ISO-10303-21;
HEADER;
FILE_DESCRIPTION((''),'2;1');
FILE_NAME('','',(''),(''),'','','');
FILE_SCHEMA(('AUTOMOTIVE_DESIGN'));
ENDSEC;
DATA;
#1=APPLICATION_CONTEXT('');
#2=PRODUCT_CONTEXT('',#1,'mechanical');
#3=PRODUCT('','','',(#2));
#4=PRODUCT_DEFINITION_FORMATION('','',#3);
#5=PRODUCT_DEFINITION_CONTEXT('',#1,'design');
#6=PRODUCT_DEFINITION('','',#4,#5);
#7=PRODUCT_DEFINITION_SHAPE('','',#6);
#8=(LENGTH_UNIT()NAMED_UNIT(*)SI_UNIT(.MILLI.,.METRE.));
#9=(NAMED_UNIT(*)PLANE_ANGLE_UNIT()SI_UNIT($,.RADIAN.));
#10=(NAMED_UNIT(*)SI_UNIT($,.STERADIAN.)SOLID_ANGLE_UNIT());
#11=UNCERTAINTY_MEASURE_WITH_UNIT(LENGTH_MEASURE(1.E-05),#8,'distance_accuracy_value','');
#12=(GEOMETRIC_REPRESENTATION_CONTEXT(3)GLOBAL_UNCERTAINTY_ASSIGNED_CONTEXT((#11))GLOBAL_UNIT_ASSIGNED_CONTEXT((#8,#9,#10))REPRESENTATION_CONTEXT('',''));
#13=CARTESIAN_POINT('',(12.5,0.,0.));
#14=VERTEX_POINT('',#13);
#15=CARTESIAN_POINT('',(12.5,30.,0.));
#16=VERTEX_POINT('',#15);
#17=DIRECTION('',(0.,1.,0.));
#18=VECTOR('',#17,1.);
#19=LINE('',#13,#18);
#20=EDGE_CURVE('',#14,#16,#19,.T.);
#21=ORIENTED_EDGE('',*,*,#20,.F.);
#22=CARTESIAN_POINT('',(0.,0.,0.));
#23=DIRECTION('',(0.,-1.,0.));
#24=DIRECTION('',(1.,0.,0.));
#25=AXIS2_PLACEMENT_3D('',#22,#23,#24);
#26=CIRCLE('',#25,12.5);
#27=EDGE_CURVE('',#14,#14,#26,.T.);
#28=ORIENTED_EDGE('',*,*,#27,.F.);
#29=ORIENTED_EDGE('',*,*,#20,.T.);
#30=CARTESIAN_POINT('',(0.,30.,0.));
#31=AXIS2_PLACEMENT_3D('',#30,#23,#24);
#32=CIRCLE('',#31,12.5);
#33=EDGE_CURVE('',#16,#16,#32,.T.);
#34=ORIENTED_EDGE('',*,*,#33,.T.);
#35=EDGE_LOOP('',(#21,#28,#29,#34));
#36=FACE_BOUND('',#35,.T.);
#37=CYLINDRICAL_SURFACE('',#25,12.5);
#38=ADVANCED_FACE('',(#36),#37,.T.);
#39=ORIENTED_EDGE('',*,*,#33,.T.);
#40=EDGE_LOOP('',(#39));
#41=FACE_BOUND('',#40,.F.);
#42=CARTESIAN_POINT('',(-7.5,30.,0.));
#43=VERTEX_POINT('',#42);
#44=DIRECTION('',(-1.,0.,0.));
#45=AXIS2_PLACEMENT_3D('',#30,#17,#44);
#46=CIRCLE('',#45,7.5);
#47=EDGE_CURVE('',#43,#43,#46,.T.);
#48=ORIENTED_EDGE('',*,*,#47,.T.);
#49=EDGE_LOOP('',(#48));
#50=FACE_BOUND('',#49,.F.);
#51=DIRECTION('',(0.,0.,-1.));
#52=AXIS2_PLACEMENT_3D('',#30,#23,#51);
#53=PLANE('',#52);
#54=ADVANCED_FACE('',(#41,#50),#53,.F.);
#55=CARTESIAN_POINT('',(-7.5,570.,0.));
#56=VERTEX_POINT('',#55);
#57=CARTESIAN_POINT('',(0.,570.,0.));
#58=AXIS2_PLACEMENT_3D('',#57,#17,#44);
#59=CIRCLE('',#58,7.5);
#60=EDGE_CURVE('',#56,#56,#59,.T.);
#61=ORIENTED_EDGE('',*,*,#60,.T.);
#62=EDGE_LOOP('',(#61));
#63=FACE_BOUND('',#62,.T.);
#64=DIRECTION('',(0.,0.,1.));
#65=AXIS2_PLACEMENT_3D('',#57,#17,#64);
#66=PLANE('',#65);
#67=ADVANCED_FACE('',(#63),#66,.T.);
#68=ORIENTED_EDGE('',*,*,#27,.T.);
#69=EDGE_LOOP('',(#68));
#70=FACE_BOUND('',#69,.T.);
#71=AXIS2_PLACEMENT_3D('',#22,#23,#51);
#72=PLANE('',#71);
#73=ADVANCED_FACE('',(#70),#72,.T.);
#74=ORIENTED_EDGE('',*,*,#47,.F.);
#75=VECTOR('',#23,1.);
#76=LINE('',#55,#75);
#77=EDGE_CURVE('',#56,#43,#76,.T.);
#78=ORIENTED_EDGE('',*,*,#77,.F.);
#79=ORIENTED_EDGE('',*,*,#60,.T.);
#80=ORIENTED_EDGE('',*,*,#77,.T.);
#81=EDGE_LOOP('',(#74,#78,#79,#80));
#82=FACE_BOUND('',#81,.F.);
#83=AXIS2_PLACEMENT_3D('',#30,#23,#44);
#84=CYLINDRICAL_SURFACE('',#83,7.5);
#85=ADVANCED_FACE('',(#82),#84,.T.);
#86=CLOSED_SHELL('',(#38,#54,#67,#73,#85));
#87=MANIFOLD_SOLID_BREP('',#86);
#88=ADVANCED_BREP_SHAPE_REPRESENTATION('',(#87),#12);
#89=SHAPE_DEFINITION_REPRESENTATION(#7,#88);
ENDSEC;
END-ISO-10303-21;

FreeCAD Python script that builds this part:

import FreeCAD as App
import Part
import Sketcher
from FreeCAD import Vector

doc = App.newDocument("Part")
params = doc.addObject("Spreadsheet::Sheet", "Params")
for row, (alias, value) in enumerate([
    ("sketch1_diameter", "25 mm"),
    ("pad1_length", "30 mm"),
    ("sketch2_diameter", "15 mm"),
    ("pad2_length", "30 mm"),
    ("sketch3_diameter", "15 mm"),
    ("pad3_length", "510 mm"),
], start=1):
    params.set(f"A{row}", alias)
    params.set(f"B{row}", "=" + value)
    params.setAlias(f"B{row}", alias)

body = doc.addObject("PartDesign::Body", "Body")

sketch1 = body.newObject("Sketcher::SketchObject", "Sketch")
sketch1.AttachmentSupport = (doc.getObject("XZ_Plane"), [""])
sketch1.MapMode = "FlatFace"
sketch1.addGeometry(Part.Circle(Vector(0, 0, 0), Vector(0, 0, 1), 12.5), False)
sketch1.addConstraint([
    Sketcher.Constraint("Coincident", 0, 3, -1, 1),
    Sketcher.Constraint("Diameter", 0, 25.0),
])
sketch1.setExpression("Constraints[1]", "Params.sketch1_diameter")
pad1 = body.newObject("PartDesign::Pad", "Pad")
pad1.Profile = sketch1
pad1.setExpression("Length", "Params.pad1_length")
pad1.Reversed = True

sketch2 = body.newObject("Sketcher::SketchObject", "Sketch001")
sketch2.AttachmentSupport = (doc.getObject("XZ_Plane"), [""])
sketch2.MapMode = "FlatFace"
sketch2.AttachmentOffset = App.Placement(Vector(0, 0, -30), App.Rotation())
sketch2.addGeometry(Part.Circle(Vector(0, 0, 0), Vector(0, 0, 1), 7.5), False)
sketch2.addConstraint([
    Sketcher.Constraint("Coincident", 0, 3, -1, 1),
    Sketcher.Constraint("Diameter", 0, 15.0),
])
sketch2.setExpression("Constraints[1]", "Params.sketch2_diameter")
pad2 = body.newObject("PartDesign::Pad", "Pad001")
pad2.Profile = sketch2
pad2.setExpression("Length", "Params.pad2_length")
pad2.Reversed = True

sketch3 = body.newObject("Sketcher::SketchObject", "Sketch002")
sketch3.AttachmentSupport = (doc.getObject("XZ_Plane"), [""])
sketch3.MapMode = "FlatFace"
sketch3.AttachmentOffset = App.Placement(Vector(0, 0, -60), App.Rotation())
sketch3.addGeometry(Part.Circle(Vector(0, 0, 0), Vector(0, 0, 1), 7.5), False)
sketch3.addConstraint([
    Sketcher.Constraint("Coincident", 0, 3, -1, 1),
    Sketcher.Constraint("Diameter", 0, 15.0),
])
sketch3.setExpression("Constraints[1]", "Params.sketch3_diameter")
pad3 = body.newObject("PartDesign::Pad", "Pad002")
pad3.Profile = sketch3
pad3.setExpression("Length", "Params.pad3_length")
pad3.Reversed = True

doc.recompute()
